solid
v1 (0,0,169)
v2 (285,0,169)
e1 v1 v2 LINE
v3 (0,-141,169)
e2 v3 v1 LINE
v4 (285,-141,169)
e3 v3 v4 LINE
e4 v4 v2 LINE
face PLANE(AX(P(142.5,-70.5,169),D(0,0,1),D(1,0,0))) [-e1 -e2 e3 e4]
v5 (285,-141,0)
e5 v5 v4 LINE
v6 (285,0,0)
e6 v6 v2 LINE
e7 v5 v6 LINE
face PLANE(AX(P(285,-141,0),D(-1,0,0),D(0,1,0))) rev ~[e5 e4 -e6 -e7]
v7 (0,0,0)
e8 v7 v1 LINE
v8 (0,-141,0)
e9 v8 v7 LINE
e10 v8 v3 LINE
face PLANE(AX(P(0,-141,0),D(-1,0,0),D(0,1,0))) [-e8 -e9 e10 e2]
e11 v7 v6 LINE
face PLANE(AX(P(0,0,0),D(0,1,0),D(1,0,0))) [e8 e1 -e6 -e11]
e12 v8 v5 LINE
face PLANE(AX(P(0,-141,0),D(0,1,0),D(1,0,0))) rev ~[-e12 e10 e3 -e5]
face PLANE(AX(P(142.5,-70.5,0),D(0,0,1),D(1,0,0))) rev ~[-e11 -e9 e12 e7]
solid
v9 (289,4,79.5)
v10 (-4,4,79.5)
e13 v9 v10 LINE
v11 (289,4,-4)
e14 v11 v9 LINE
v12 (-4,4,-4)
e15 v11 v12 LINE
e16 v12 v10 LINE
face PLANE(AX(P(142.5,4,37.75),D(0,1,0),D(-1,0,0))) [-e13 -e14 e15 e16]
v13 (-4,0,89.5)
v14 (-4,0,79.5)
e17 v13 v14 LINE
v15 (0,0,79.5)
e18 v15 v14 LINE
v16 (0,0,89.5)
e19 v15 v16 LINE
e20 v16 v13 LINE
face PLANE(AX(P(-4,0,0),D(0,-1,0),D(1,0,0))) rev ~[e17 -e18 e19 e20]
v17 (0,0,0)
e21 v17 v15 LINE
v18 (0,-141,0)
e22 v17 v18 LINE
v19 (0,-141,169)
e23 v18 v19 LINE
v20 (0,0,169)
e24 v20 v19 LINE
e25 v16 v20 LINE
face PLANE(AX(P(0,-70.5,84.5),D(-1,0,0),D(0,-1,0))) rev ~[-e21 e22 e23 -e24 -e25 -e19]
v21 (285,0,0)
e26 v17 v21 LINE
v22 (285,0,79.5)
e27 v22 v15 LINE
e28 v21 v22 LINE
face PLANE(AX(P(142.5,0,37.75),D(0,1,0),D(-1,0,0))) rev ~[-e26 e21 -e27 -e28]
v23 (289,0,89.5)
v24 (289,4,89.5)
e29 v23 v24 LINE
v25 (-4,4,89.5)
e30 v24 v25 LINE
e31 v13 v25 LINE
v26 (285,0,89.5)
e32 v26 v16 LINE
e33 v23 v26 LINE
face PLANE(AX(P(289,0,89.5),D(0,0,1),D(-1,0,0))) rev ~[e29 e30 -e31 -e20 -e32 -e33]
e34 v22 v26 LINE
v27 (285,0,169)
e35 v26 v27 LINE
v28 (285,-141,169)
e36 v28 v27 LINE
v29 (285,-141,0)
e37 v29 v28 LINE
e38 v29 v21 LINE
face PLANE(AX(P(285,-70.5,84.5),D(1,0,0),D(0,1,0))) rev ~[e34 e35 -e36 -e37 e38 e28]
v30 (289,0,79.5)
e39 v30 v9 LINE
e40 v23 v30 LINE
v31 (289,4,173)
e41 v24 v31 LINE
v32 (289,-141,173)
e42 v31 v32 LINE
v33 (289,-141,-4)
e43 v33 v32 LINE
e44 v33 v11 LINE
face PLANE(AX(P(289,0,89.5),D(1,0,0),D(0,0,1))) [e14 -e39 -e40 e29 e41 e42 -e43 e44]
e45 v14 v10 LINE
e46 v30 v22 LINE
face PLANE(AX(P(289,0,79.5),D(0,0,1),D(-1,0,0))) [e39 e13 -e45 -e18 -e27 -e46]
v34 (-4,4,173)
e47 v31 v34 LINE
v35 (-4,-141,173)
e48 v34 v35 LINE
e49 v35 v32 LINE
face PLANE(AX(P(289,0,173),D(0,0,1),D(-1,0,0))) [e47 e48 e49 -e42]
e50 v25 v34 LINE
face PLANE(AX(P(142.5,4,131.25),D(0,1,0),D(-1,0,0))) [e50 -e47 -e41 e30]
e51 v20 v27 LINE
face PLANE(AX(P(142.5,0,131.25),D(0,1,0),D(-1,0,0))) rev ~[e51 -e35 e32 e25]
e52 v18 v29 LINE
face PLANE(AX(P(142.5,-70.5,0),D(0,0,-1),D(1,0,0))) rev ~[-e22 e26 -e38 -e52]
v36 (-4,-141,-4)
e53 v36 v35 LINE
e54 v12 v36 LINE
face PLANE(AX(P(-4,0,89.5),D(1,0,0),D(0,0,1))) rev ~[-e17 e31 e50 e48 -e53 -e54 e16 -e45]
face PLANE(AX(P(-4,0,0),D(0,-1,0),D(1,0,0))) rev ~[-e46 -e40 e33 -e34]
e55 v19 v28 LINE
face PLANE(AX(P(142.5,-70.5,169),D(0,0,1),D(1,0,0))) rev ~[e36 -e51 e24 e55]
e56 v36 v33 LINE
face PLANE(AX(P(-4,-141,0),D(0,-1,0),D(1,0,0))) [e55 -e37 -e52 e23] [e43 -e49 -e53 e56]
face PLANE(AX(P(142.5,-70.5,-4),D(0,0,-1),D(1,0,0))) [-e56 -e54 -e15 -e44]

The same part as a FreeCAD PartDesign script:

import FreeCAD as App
import Part
import Sketcher

V = App.Vector


def add_polygon(sketch, points):
    """Adds a closed chain of lines whose ends are joined by coincident constraints."""
    first, n = sketch.GeometryCount, len(points)
    for a, b in zip(points, points[1:] + points[:1]):
        sketch.addGeometry(Part.LineSegment(App.Vector(*a, 0), App.Vector(*b, 0)), False)
    for i in range(n):
        sketch.addConstraint(Sketcher.Constraint("Coincident", first + i, 2, first + (i + 1) % n, 1))

doc = App.newDocument("Part")
body = doc.addObject("PartDesign::Body", "Body")

# Sketch on XY plane
sketch1 = doc.addObject("Sketcher::SketchObject", "Sketch")
body.addObject(sketch1)
sketch1.AttachmentSupport = (doc.XY_Plane, [""])
sketch1.MapMode = "FlatFace"
add_polygon(sketch1, [(0, 0), (0, -141), (285, -141), (285, 0)])  # lines 0-3
sketch1.addConstraint([
    Sketcher.Constraint("Vertical", 0),
    Sketcher.Constraint("Horizontal", 1),
    Sketcher.Constraint("Vertical", 2),
    Sketcher.Constraint("Horizontal", 3),
    Sketcher.Constraint("Coincident", 3, 2, -1, 1),
    Sketcher.Constraint("DistanceX", 1, 1, 1, 2, 285.0),
    Sketcher.Constraint("DistanceY", 0, 2, 0, 1, 141.0),
])
pad1 = doc.addObject("PartDesign::Pad", "Pad")
body.addObject(pad1)
pad1.Profile = sketch1
pad1.Length = 169
body2 = doc.addObject("PartDesign::Body", "Body001")

# Sketch on YZ plane
sketch2 = doc.addObject("Sketcher::SketchObject", "Sketch001")
body2.addObject(sketch2)
sketch2.AttachmentSupport = (doc.getObject("YZ_Plane001"), [""])
sketch2.MapMode = "FlatFace"
sketch2.AttachmentOffset = App.Placement(V(0, 0, 285), App.Rotation())
add_polygon(sketch2, [(-141, 169), (-141, 0), (0, 0), (0, 169)])  # lines 0-3
sketch2.addConstraint([
    Sketcher.Constraint("Vertical", 0),
    Sketcher.Constraint("Horizontal", 1),
    Sketcher.Constraint("Vertical", 2),
    Sketcher.Constraint("Horizontal", 3),
    Sketcher.Constraint("Coincident", 1, 2, -1, 1),
    Sketcher.Constraint("DistanceX", 1, 1, 1, 2, 141.0),
    Sketcher.Constraint("DistanceY", 0, 2, 0, 1, 169.0),
])
pad2 = doc.addObject("PartDesign::Pad", "Pad001")
body2.addObject(pad2)
pad2.Profile = sketch2
pad2.Length = 4
body3 = doc.addObject("PartDesign::Body", "Body002")

# Sketch on YZ plane
sketch3 = doc.addObject("Sketcher::SketchObject", "Sketch002")
body3.addObject(sketch3)
sketch3.AttachmentSupport = (doc.getObject("YZ_Plane002"), [""])
sketch3.MapMode = "FlatFace"
add_polygon(sketch3, [(0, 169), (0, 0), (-141, 0), (-141, 169)])  # lines 0-3
sketch3.addConstraint([
    Sketcher.Constraint("Vertical", 0),
    Sketcher.Constraint("Horizontal", 1),
    Sketcher.Constraint("Vertical", 2),
    Sketcher.Constraint("Horizontal", 3),
    Sketcher.Constraint("Coincident", 0, 2, -1, 1),
    Sketcher.Constraint("DistanceX", 1, 2, 1, 1, 141.0),
    Sketcher.Constraint("DistanceY", 0, 2, 0, 1, 169.0),
])
pad3 = doc.addObject("PartDesign::Pad", "Pad002")
body3.addObject(pad3)
pad3.Profile = sketch3
pad3.Length = 4
pad3.Reversed = True
body2.AllowCompound = True
doc.recompute()

boolean = doc.addObject("PartDesign::Boolean", "Boolean")
body2.addObject(boolean)
boolean.Type = "Fuse"
boolean.addObjects([body3])

# Sketch on XY plane
sketch4 = doc.addObject("Sketcher::SketchObject", "Sketch003")
body2.addObject(sketch4)
sketch4.AttachmentSupport = (doc.getObject("XY_Plane001"), [""])
sketch4.MapMode = "FlatFace"
sketch4.AttachmentOffset = App.Placement(V(0, 0, 169), App.Rotation())
add_polygon(sketch4, [(-4, 0), (-4, -141), (289, -141), (289, 0)])  # lines 0-3
sketch4.addConstraint([
    Sketcher.Constraint("Vertical", 0),
    Sketcher.Constraint("Horizontal", 1),
    Sketcher.Constraint("Vertical", 2),
    Sketcher.Constraint("Horizontal", 3),
    Sketcher.Constraint("PointOnObject", 2, 2, -1),
    Sketcher.Constraint("DistanceX", 1, 1, 1, 2, 293.0),
    Sketcher.Constraint("DistanceY", 0, 2, 0, 1, 141.0),
    Sketcher.Constraint("DistanceX", 0, 2, -1, 1, 4.0),
])
pad4 = doc.addObject("PartDesign::Pad", "Pad003")
body2.addObject(pad4)
pad4.Profile = sketch4
pad4.Length = 4
body4 = doc.addObject("PartDesign::Body", "Body003")

# Sketch on XY plane
sketch5 = doc.addObject("Sketcher::SketchObject", "Sketch004")
body4.addObject(sketch5)
sketch5.AttachmentSupport = (doc.getObject("XY_Plane003"), [""])
sketch5.MapMode = "FlatFace"
add_polygon(sketch5, [(-4, -141), (-4, 0), (289, 0), (289, -141)])  # lines 0-3
sketch5.addConstraint([
    Sketcher.Constraint("Vertical", 0),
    Sketcher.Constraint("Horizontal", 1),
    Sketcher.Constraint("Vertical", 2),
    Sketcher.Constraint("Horizontal", 3),
    Sketcher.Constraint("PointOnObject", 0, 2, -1),
    Sketcher.Constraint("DistanceX", 1, 1, 1, 2, 293.0),
    Sketcher.Constraint("DistanceY", 0, 1, 0, 2, 141.0),
    Sketcher.Constraint("DistanceX", 0, 2, -1, 1, 4.0),
])
pad5 = doc.addObject("PartDesign::Pad", "Pad004")
body4.addObject(pad5)
pad5.Profile = sketch5
pad5.Length = 4
pad5.Reversed = True
doc.recompute()

boolean2 = doc.addObject("PartDesign::Boolean", "Boolean001")
body2.addObject(boolean2)
boolean2.Type = "Fuse"
boolean2.addObjects([body4])

# Sketch on XZ plane
sketch6 = doc.addObject("Sketcher::SketchObject", "Sketch005")
body2.addObject(sketch6)
sketch6.AttachmentSupport = (doc.getObject("XZ_Plane001"), [""])
sketch6.MapMode = "FlatFace"
add_polygon(sketch6, [(289, 173), (289, 90), (-4, 90), (-4, 173)])  # lines 0-3
add_polygon(sketch6, [(289, 80), (289, -4), (-4, -4), (-4, 80)])  # lines 4-7
sketch6.addConstraint([
    Sketcher.Constraint("Vertical", 0),
    Sketcher.Constraint("Horizontal", 1),
    Sketcher.Constraint("Vertical", 2),
    Sketcher.Constraint("Horizontal", 3),
    Sketcher.Constraint("Vertical", 4),
    Sketcher.Constraint("Horizontal", 5),
    Sketcher.Constraint("Vertical", 6),
    Sketcher.Constraint("Horizontal", 7),
    Sketcher.Constraint("Vertical", 3, 2, 4, 2),
    Sketcher.Constraint("Vertical", 2, 2, 5, 2),
    Sketcher.Constraint("Equal", 2, 4),
    Sketcher.Constraint("DistanceX", 1, 2, 1, 1, 293.0),
    Sketcher.Constraint("DistanceY", 0, 2, 0, 1, 83.5),
    Sketcher.Constraint("DistanceX", -1, 1, 0, 2, 289.0),
    Sketcher.Constraint("DistanceY", -1, 1, 2, 2, 173.0),
    Sketcher.Constraint("DistanceY", 4, 2, -1, 1, 4.0),
])
pad6 = doc.addObject("PartDesign::Pad", "Pad005")
body2.addObject(pad6)
pad6.Profile = sketch6
pad6.Length = 4
pad6.Reversed = True

doc.recompute()
